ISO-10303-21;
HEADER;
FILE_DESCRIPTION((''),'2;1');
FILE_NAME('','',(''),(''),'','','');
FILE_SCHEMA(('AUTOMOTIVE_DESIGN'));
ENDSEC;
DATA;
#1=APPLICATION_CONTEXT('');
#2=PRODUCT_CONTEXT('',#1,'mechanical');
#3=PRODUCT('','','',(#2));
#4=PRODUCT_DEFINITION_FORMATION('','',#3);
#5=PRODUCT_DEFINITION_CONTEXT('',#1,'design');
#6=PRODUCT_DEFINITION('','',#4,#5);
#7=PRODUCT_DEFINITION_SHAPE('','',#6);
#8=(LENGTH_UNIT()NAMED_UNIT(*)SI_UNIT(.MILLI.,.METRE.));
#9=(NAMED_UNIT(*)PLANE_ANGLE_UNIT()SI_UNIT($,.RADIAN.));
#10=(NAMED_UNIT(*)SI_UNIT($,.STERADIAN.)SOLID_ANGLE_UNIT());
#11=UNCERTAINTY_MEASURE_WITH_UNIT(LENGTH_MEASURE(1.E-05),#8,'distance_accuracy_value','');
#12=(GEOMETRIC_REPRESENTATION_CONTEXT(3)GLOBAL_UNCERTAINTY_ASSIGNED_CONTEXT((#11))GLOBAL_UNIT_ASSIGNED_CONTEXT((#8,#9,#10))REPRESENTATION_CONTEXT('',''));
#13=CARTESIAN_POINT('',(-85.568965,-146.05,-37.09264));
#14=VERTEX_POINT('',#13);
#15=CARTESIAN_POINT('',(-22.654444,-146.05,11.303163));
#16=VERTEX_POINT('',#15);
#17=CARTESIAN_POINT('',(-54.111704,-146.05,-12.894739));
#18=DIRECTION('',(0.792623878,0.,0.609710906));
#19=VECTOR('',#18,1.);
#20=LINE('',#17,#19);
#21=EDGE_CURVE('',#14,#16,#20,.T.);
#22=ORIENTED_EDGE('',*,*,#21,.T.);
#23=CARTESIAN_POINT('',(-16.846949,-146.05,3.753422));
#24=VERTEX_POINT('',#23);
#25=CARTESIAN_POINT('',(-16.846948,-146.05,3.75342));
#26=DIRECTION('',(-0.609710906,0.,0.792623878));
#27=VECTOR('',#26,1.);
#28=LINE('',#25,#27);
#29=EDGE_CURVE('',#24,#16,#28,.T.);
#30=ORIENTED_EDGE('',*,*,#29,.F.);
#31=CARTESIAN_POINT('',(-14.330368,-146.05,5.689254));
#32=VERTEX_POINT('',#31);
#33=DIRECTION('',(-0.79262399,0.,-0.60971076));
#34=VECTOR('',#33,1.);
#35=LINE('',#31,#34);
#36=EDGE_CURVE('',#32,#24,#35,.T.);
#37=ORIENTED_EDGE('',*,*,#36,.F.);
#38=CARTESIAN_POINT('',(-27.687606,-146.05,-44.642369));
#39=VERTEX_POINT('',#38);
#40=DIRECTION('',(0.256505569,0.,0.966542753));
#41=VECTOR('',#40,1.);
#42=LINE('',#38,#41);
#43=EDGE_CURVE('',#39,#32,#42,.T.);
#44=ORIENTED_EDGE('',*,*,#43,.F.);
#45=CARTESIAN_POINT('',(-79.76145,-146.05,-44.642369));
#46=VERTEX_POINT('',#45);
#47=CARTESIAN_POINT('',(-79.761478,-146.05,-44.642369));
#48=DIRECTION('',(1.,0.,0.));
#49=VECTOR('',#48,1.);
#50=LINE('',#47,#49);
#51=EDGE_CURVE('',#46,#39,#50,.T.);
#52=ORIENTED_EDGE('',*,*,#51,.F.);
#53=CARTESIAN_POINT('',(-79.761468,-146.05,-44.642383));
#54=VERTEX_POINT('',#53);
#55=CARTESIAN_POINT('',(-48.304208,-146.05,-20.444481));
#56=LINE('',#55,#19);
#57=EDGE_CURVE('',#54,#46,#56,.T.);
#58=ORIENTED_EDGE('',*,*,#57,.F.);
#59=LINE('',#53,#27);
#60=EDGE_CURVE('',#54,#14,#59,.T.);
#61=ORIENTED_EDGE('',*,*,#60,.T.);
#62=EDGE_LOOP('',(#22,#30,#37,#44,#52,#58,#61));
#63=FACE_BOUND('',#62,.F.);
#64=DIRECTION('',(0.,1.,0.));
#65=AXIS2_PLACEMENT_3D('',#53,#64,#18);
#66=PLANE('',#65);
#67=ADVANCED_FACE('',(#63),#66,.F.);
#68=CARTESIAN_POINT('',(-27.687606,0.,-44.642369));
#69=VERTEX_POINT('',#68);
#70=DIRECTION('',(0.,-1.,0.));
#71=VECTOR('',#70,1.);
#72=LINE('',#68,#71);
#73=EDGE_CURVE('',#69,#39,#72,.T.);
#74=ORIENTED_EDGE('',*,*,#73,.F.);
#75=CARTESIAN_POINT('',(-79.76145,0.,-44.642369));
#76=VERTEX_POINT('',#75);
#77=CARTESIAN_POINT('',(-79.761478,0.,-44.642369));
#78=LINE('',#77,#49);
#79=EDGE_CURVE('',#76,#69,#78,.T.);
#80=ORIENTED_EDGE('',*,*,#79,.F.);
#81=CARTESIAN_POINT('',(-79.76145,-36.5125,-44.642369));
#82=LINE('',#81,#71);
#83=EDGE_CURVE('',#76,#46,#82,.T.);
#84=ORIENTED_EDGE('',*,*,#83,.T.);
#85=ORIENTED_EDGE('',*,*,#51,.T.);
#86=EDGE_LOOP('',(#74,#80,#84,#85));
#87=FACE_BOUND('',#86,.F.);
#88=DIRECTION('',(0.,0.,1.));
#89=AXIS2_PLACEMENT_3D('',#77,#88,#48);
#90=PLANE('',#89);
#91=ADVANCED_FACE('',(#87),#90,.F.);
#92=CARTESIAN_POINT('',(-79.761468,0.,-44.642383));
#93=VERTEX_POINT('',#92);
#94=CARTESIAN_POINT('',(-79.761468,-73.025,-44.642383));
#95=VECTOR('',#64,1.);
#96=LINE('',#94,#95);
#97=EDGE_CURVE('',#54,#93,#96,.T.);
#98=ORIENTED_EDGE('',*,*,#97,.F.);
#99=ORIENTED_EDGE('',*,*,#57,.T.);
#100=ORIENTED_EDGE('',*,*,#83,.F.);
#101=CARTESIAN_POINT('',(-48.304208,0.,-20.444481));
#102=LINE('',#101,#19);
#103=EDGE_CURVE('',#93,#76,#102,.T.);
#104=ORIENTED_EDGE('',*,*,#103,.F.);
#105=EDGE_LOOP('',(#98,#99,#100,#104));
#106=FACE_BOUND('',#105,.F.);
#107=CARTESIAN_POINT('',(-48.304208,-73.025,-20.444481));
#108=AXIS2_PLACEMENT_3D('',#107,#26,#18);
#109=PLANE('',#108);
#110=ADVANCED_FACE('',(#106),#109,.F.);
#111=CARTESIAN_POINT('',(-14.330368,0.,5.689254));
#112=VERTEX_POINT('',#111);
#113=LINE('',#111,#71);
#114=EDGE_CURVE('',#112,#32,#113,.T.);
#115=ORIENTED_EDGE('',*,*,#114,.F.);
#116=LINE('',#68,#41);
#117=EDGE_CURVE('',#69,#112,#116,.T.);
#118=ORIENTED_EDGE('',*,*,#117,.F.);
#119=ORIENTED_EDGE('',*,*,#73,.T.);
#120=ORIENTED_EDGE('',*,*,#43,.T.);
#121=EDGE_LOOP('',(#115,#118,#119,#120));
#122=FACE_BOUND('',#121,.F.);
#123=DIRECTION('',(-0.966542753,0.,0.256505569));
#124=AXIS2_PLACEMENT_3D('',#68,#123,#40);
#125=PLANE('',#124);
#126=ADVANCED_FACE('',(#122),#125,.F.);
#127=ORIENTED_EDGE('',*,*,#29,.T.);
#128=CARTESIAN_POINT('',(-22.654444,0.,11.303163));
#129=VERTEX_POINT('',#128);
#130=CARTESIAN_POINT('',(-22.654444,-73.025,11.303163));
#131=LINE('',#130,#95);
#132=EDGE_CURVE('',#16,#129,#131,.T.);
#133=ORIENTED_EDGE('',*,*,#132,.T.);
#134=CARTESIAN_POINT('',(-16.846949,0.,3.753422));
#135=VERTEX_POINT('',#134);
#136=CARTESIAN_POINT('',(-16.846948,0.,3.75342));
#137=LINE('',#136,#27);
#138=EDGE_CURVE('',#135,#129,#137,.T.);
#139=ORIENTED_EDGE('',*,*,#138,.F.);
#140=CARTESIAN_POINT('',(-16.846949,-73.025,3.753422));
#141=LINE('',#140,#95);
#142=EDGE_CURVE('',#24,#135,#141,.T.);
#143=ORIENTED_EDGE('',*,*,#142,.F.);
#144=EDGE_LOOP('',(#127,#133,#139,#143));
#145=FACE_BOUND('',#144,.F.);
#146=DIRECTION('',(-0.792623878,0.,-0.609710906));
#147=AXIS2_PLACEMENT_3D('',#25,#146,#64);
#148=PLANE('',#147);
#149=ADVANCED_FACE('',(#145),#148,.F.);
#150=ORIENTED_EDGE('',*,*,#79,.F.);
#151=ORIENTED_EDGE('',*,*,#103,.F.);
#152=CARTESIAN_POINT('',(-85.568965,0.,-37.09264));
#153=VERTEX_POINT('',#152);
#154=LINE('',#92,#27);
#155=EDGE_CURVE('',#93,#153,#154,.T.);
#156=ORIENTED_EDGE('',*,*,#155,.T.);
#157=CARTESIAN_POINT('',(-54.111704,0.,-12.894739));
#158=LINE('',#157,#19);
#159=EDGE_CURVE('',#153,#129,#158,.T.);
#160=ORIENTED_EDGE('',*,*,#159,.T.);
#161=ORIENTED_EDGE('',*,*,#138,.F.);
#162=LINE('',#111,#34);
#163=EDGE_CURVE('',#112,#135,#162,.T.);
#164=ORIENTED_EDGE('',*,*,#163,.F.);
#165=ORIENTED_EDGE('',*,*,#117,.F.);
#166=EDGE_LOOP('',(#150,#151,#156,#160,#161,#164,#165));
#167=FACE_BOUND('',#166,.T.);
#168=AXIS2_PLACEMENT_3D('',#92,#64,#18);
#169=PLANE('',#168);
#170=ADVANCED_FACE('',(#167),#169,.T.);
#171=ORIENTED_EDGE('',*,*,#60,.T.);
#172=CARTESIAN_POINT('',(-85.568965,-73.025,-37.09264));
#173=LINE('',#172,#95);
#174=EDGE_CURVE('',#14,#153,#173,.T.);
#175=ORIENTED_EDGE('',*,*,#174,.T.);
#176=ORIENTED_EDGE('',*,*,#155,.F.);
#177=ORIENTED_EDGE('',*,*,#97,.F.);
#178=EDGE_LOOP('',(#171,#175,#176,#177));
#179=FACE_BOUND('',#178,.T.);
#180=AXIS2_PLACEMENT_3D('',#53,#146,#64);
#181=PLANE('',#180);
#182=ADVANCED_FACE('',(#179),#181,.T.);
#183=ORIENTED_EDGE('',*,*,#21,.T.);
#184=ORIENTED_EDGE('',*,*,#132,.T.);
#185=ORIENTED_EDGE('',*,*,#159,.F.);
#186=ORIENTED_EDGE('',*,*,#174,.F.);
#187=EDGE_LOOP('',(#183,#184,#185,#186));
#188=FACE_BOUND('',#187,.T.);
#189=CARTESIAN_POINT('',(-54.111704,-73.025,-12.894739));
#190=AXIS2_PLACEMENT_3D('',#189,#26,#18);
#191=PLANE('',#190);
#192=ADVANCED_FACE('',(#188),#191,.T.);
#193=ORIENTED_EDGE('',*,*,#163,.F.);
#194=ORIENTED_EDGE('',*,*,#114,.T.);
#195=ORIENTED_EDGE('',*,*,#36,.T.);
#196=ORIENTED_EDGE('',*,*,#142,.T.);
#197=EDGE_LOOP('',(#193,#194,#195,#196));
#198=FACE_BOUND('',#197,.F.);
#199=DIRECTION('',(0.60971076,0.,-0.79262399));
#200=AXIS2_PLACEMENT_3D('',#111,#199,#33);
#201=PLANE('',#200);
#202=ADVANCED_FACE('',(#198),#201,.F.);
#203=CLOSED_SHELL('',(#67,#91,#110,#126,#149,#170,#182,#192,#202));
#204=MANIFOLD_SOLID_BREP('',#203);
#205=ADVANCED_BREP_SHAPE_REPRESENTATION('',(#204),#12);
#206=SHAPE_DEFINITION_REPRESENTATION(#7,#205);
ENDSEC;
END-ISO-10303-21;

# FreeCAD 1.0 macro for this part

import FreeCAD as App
import Part
import Sketcher

V = App.Vector
Q = App.Units.Quantity

doc = App.newDocument("Part")
params = doc.addObject("Spreadsheet::Sheet", "Params")
for row, (alias, value) in enumerate([
    ("sketch1_length", "3.25 in"),
    ("pad1_length", "5.75 in"),
    ("sketch2_height", "5.75 in"),
    ("sketch2_width", "3.125 in"),
    ("pad2_length", "0.375 in"),
], start=1):
    params.set(f"A{row}", alias)
    params.set(f"B{row}", "=" + value)
    params.setAlias(f"B{row}", alias)

body = doc.addObject("PartDesign::Body", "Body")

# Sketch on XZ plane
sketch1 = body.newObject("Sketcher::SketchObject", "Sketch")
sketch1.AttachmentSupport = (doc.getObject("XZ_Plane"), [""])
sketch1.MapMode = "FlatFace"
sketch1.addGeometry([
    Part.LineSegment(V(-14, 6, 0), V(-80, -45, 0)),
    Part.LineSegment(V(-80, -45, 0), V(-28, -45, 0)),
    Part.LineSegment(V(-28, -45, 0), V(-14, 6, 0)),
], False)
sketch1.addConstraint([
    Sketcher.Constraint("Coincident", 0, 2, 1, 1),
    Sketcher.Constraint("Coincident", 1, 2, 2, 1),
    Sketcher.Constraint("Coincident", 2, 2, 0, 1),
    Sketcher.Constraint("Horizontal", 1),
    Sketcher.Constraint("Distance", 0, Q("3.25 in")),
    Sketcher.Constraint("DistanceX", 1, 1, 1, 2, 52.073872),
    Sketcher.Constraint("Distance", 2, 52.073871),
    Sketcher.Constraint("DistanceY", 0, 2, -1, 1, 44.642369),
    Sketcher.Constraint("DistanceX", 0, 2, -1, 1, 79.761478),
])
sketch1.setExpression("Constraints[4]", "Params.sketch1_length")
pad1 = body.newObject("PartDesign::Pad", "Pad")
pad1.Profile = sketch1
pad1.setExpression("Length", "Params.pad1_length")

# Sketch on an angled plane
sketch2 = body.newObject("Sketcher::SketchObject", "Sketch001")
sketch2.Placement = App.Placement(V(-8.076728, 0, 10.499746), App.Rotation(V(0.792623878, 0, 0.609710906), V(0, 1.000000001, 0), V(-0.609710906, 0, 0.792623878), "ZXY"))
sketch2.addGeometry([
    Part.LineSegment(V(-90, 0, 0), V(-90, -146, 0)),
    Part.LineSegment(V(-90, -146, 0), V(-11, -146, 0)),
    Part.LineSegment(V(-11, -146, 0), V(-11, 0, 0)),
    Part.LineSegment(V(-11, 0, 0), V(-90, 0, 0)),
], False)
sketch2.addConstraint([
    Sketcher.Constraint("Coincident", 0, 2, 1, 1),
    Sketcher.Constraint("Coincident", 1, 2, 2, 1),
    Sketcher.Constraint("Coincident", 2, 2, 3, 1),
    Sketcher.Constraint("Coincident", 3, 2, 0, 1),
    Sketcher.Constraint("Vertical", 0),
    Sketcher.Constraint("Horizontal", 1),
    Sketcher.Constraint("Vertical", 2),
    Sketcher.Constraint("Horizontal", 3),
    Sketcher.Constraint("PointOnObject", 2, 2, -1),
    Sketcher.Constraint("DistanceY", 0, 2, 0, 1, Q("5.75 in")),
    Sketcher.Constraint("DistanceX", 1, 1, 1, 2, Q("3.125 in")),
    Sketcher.Constraint("DistanceX", 0, 2, -1, 1, 90.439794),
])
sketch2.setExpression("Constraints[9]", "Params.sketch2_height")
sketch2.setExpression("Constraints[10]", "Params.sketch2_width")
pad2 = body.newObject("PartDesign::Pad", "Pad001")
pad2.Profile = sketch2
pad2.setExpression("Length", "Params.pad2_length")

doc.recompute()
